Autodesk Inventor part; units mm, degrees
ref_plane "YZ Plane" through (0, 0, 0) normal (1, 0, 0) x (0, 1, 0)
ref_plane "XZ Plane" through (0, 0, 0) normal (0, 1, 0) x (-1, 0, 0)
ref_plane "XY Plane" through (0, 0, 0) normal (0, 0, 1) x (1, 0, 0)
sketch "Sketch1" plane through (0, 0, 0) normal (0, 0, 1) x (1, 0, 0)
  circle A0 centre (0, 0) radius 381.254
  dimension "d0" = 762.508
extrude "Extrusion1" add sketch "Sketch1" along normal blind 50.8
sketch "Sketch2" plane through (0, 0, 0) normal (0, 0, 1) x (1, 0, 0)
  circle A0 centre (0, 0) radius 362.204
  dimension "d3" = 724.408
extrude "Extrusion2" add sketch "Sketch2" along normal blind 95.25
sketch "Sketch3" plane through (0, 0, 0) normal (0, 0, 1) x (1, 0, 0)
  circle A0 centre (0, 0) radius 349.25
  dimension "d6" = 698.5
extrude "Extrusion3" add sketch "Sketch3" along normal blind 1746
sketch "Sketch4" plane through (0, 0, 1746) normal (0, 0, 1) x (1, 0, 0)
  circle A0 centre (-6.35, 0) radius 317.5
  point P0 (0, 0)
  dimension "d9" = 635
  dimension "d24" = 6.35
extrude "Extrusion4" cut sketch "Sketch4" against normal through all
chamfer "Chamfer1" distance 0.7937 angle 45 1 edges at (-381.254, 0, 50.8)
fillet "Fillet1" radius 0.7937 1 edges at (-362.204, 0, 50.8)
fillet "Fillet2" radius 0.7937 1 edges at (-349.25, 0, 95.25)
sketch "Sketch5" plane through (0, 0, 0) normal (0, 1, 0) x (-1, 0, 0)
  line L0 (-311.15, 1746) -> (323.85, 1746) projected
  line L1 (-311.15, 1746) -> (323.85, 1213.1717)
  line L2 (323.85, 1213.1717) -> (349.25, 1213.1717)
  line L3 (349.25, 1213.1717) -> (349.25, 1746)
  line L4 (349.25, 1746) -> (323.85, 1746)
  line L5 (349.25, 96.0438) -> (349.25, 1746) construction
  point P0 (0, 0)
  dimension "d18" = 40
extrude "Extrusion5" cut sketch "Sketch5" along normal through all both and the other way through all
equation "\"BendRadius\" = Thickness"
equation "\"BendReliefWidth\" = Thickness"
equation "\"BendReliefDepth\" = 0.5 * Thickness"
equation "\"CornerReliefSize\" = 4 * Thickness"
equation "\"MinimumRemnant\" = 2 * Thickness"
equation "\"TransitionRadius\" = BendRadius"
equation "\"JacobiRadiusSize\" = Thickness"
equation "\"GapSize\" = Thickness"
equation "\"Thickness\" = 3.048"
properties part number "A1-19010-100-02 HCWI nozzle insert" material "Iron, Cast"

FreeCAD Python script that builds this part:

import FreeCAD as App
import Part
import Sketcher
Q = App.Units.Quantity


def edges_at(feature, points):
    """Names of the edges that pass closest to the given points."""
    edges = feature.Shape.Edges
    near = lambda p: min(range(len(edges)), key=lambda i: edges[i].distToShape(Part.Vertex(*p))[0])
    return sorted({f"Edge{near(p) + 1}" for p in points})

doc = App.newDocument("Part")
body = doc.addObject("PartDesign::Body", "Body")

sketch1 = body.newObject("Sketcher::SketchObject", "Sketch")
sketch1.AttachmentSupport = (doc.getObject("XY_Plane"), [""])
sketch1.MapMode = "FlatFace"
sketch1.addGeometry(Part.Circle(App.Vector(0, 0, 0), App.Vector(0, 0, 1), 381), False)
sketch1.addConstraint([
    Sketcher.Constraint("Coincident", 0, 3, -1, 1),
    Sketcher.Constraint("Diameter", 0, Q("30.02 in")),
])
pad1 = body.newObject("PartDesign::Pad", "Pad")
pad1.Profile = sketch1
pad1.Length = Q("2 in")

sketch2 = body.newObject("Sketcher::SketchObject", "Sketch001")
sketch2.AttachmentSupport = (doc.getObject("XY_Plane"), [""])
sketch2.MapMode = "FlatFace"
sketch2.addGeometry(Part.Circle(App.Vector(0, 0, 0), App.Vector(0, 0, 1), 362), False)
sketch2.addConstraint([
    Sketcher.Constraint("Coincident", 0, 3, -1, 1),
    Sketcher.Constraint("Diameter", 0, Q("28.52 in")),
])
pad2 = body.newObject("PartDesign::Pad", "Pad001")
pad2.Profile = sketch2
pad2.Length = Q("3.75 in")

sketch3 = body.newObject("Sketcher::SketchObject", "Sketch002")
sketch3.AttachmentSupport = (doc.getObject("XY_Plane"), [""])
sketch3.MapMode = "FlatFace"
sketch3.addGeometry(Part.Circle(App.Vector(0, 0, 0), App.Vector(0, 0, 1), 349), False)
sketch3.addConstraint([
    Sketcher.Constraint("Coincident", 0, 3, -1, 1),
    Sketcher.Constraint("Diameter", 0, Q("27.5 in")),
])
pad3 = body.newObject("PartDesign::Pad", "Pad002")
pad3.Profile = sketch3
pad3.Length = 1746

sketch4 = body.newObject("Sketcher::SketchObject", "Sketch003")
sketch4.AttachmentSupport = (doc.getObject("XY_Plane"), [""])
sketch4.MapMode = "FlatFace"
sketch4.AttachmentOffset = App.Placement(App.Vector(0, 0, 1746), App.Rotation())
sketch4.addGeometry(Part.Circle(App.Vector(-6, 0, 0), App.Vector(0, 0, 1), 318), False)
sketch4.addConstraint([
    Sketcher.Constraint("PointOnObject", 0, 3, -1),
    Sketcher.Constraint("Diameter", 0, Q("25 in")),
    Sketcher.Constraint("DistanceX", 0, 3, -1, 1, Q("0.25 in")),
])
pocket1 = body.newObject("PartDesign::Pocket", "Pocket")
pocket1.Profile = sketch4
pocket1.Type = "ThroughAll"
doc.recompute()

chamfer = body.newObject("PartDesign::Chamfer", "Chamfer")
chamfer.Base = (pocket1, edges_at(pocket1, [(-381.254, 0, 50.8)]))
chamfer.Size = Q("0.031248 in")
doc.recompute()

fillet = body.newObject("PartDesign::Fillet", "Fillet")
fillet.Base = (chamfer, edges_at(chamfer, [(-362.204, 0, 50.8)]))
fillet.Radius = Q("0.031248 in")
doc.recompute()

fillet2 = body.newObject("PartDesign::Fillet", "Fillet001")
fillet2.Base = (fillet, edges_at(fillet, [(-349.25, 0, 95.25)]))
fillet2.Radius = Q("0.031248 in")

sketch5 = body.newObject("Sketcher::SketchObject", "Sketch004")
sketch5.AttachmentSupport = (doc.getObject("XZ_Plane"), [""])
sketch5.MapMode = "FlatFace"
sketch5.addGeometry([
    Part.LineSegment(App.Vector(-349, 1746, 0), App.Vector(311, 1746, 0)),
    Part.LineSegment(App.Vector(311, 1746, 0), App.Vector(-324, 1213, 0)),
    Part.LineSegment(App.Vector(-324, 1213, 0), App.Vector(-349, 1213, 0)),
    Part.LineSegment(App.Vector(-349, 1213, 0), App.Vector(-349, 1746, 0)),
], False)
sketch5.addConstraint([
    Sketcher.Constraint("Coincident", 0, 2, 1, 1),
    Sketcher.Constraint("Coincident", 1, 2, 2, 1),
    Sketcher.Constraint("Coincident", 2, 2, 3, 1),
    Sketcher.Constraint("Coincident", 3, 2, 0, 1),
    Sketcher.Constraint("Horizontal", 0),
    Sketcher.Constraint("Horizontal", 2),
    Sketcher.Constraint("Vertical", 3),
    Sketcher.Constraint("DistanceX", 0, 1, 0, 2, Q("26 in")),
    Sketcher.Constraint("DistanceX", 2, 2, 2, 1, Q("1 in")),
    Sketcher.Constraint("Angle", 1, Q("-140 deg")),
    Sketcher.Constraint("DistanceX", -1, 1, 0, 2, Q("12.25 in")),
    Sketcher.Constraint("DistanceY", -1, 1, 0, 2, Q("1746 mm")),
])
pocket2 = body.newObject("PartDesign::Pocket", "Pocket001")
pocket2.Profile = sketch5
pocket2.Type = "ThroughAll"
pocket2.Midplane = True

doc.recompute()
